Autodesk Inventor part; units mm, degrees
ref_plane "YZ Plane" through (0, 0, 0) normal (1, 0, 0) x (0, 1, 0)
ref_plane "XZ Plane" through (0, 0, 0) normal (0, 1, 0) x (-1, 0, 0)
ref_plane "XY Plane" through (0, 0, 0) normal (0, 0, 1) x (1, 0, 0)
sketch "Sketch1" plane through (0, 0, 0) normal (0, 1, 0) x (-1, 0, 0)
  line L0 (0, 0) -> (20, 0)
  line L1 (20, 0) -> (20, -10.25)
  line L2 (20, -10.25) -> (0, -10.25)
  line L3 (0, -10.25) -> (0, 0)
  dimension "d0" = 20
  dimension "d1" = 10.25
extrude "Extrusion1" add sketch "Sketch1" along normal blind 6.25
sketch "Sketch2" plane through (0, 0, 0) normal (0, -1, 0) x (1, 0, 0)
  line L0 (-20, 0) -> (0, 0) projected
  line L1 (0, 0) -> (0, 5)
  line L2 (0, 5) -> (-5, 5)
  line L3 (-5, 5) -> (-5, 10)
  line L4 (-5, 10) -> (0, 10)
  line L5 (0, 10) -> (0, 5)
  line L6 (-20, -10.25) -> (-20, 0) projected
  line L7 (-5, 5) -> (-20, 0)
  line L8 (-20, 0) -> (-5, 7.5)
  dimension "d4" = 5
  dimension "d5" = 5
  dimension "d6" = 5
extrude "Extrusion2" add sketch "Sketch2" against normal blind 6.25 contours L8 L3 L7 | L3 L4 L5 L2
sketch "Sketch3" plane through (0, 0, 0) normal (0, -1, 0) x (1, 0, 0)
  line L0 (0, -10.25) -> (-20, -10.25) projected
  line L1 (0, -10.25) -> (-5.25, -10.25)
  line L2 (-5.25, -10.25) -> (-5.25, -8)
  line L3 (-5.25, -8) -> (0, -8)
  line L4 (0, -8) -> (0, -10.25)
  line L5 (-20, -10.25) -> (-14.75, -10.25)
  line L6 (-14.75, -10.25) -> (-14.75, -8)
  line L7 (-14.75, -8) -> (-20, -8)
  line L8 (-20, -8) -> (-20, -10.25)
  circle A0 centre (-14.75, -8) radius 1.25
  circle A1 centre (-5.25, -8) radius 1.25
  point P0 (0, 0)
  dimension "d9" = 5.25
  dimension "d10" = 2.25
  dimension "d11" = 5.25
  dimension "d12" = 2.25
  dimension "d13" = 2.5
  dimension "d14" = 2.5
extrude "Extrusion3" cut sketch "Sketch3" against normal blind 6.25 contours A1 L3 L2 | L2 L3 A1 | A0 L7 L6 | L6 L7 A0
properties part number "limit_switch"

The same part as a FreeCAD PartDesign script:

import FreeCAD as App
import Part
import Sketcher
Q = App.Units.Quantity

doc = App.newDocument("Part")
body = doc.addObject("PartDesign::Body", "Body")
body.AllowCompound = True

# Sketch on XZ plane
sketch1 = body.newObject("Sketcher::SketchObject", "Sketch")
sketch1.AttachmentSupport = (doc.getObject("XZ_Plane"), [""])
sketch1.MapMode = "FlatFace"
sketch1.addGeometry(Part.LineSegment(App.Vector(-20, 0, 0), App.Vector(0, 0, 0)), False)
sketch1.addGeometry(Part.LineSegment(App.Vector(0, 0, 0), App.Vector(0, -10.25, 0)), False)
sketch1.addGeometry(Part.LineSegment(App.Vector(0, -10.25, 0), App.Vector(-20, -10.25, 0)), False)
sketch1.addGeometry(Part.LineSegment(App.Vector(-20, -10.25, 0), App.Vector(-20, 0, 0)), False)
sketch1.addConstraint(Sketcher.Constraint("Coincident", 0, 2, 1, 1))
sketch1.addConstraint(Sketcher.Constraint("Coincident", 1, 2, 2, 1))
sketch1.addConstraint(Sketcher.Constraint("Coincident", 2, 2, 3, 1))
sketch1.addConstraint(Sketcher.Constraint("Coincident", 3, 2, 0, 1))
sketch1.addConstraint(Sketcher.Constraint("Horizontal", 0))
sketch1.addConstraint(Sketcher.Constraint("Vertical", 1))
sketch1.addConstraint(Sketcher.Constraint("Horizontal", 2))
sketch1.addConstraint(Sketcher.Constraint("Vertical", 3))
sketch1.addConstraint(Sketcher.Constraint("Coincident", 0, 2, -1, 1))
sketch1.addConstraint(Sketcher.Constraint("DistanceX", 0, 1, 0, 2, Q("20 mm")))
sketch1.addConstraint(Sketcher.Constraint("DistanceY", 1, 2, 1, 1, Q("10.25 mm")))
pad1 = body.newObject("PartDesign::Pad", "Pad")
pad1.Profile = sketch1
pad1.Length = 6.25
pad1.Reversed = True

# Sketch on XZ plane
sketch2 = body.newObject("Sketcher::SketchObject", "Sketch001")
sketch2.AttachmentSupport = (doc.getObject("XZ_Plane"), [""])
sketch2.MapMode = "FlatFace"
sketch2.addGeometry(Part.LineSegment(App.Vector(-5, 7.5, 0), App.Vector(-20, 0, 0)), False)
sketch2.addGeometry(Part.LineSegment(App.Vector(-20, 0, 0), App.Vector(-5, 5, 0)), False)
sketch2.addGeometry(Part.LineSegment(App.Vector(-5, 5, 0), App.Vector(0, 5, 0)), False)
sketch2.addGeometry(Part.LineSegment(App.Vector(0, 5, 0), App.Vector(0, 10, 0)), False)
sketch2.addGeometry(Part.LineSegment(App.Vector(0, 10, 0), App.Vector(-5, 10, 0)), False)
sketch2.addGeometry(Part.LineSegment(App.Vector(-5, 10, 0), App.Vector(-5, 7.5, 0)), False)
sketch2.addConstraint(Sketcher.Constraint("Coincident", 0, 2, 1, 1))
sketch2.addConstraint(Sketcher.Constraint("Coincident", 1, 2, 2, 1))
sketch2.addConstraint(Sketcher.Constraint("Coincident", 2, 2, 3, 1))
sketch2.addConstraint(Sketcher.Constraint("Coincident", 3, 2, 4, 1))
sketch2.addConstraint(Sketcher.Constraint("Coincident", 4, 2, 5, 1))
sketch2.addConstraint(Sketcher.Constraint("Coincident", 5, 2, 0, 1))
sketch2.addConstraint(Sketcher.Constraint("Horizontal", 2))
sketch2.addConstraint(Sketcher.Constraint("Vertical", 3))
sketch2.addConstraint(Sketcher.Constraint("Horizontal", 4))
sketch2.addConstraint(Sketcher.Constraint("Vertical", 5))
sketch2.addConstraint(Sketcher.Constraint("PointOnObject", 0, 2, -1))
sketch2.addConstraint(Sketcher.Constraint("PointOnObject", 2, 2, -2))
sketch2.addConstraint(Sketcher.Constraint("Vertical", 1, 2, 4, 2))
sketch2.addConstraint(Sketcher.Constraint("Equal", 4, 3))
sketch2.addConstraint(Sketcher.Constraint("DistanceX", 2, 1, 2, 2, Q("5 mm")))
sketch2.addConstraint(Sketcher.Constraint("DistanceY", -1, 1, 1, 2, Q("5 mm")))
sketch2.addConstraint(Sketcher.Constraint("DistanceY", 5, 2, 5, 1, Q("2.5 mm")))
sketch2.addConstraint(Sketcher.Constraint("DistanceX", 0, 2, -1, 1, Q("20 mm")))
pad2 = body.newObject("PartDesign::Pad", "Pad001")
pad2.Profile = sketch2
pad2.Length = 6.25
pad2.Reversed = True

# Sketch on XZ plane
sketch3 = body.newObject("Sketcher::SketchObject", "Sketch002")
sketch3.AttachmentSupport = (doc.getObject("XZ_Plane"), [""])
sketch3.MapMode = "FlatFace"
sketch3.addGeometry(Part.Circle(App.Vector(-5.25, -8, 0), App.Vector(0, 0, 1), 1.25), False)
sketch3.addGeometry(Part.Circle(App.Vector(-14.75, -8, 0), App.Vector(0, 0, 1), 1.25), False)
sketch3.addConstraint(Sketcher.Constraint("Equal", 0, 1))
sketch3.addConstraint(Sketcher.Constraint("Horizontal", 0, 3, 1, 3))
sketch3.addConstraint(Sketcher.Constraint("Diameter", 0, Q("2.5 mm")))
sketch3.addConstraint(Sketcher.Constraint("DistanceX", 0, 3, -1, 1, Q("5.25 mm")))
sketch3.addConstraint(Sketcher.Constraint("DistanceY", 0, 3, -1, 1, Q("8 mm")))
sketch3.addConstraint(Sketcher.Constraint("DistanceX", 1, 3, 0, 3, Q("9.5 mm")))
pocket1 = body.newObject("PartDesign::Pocket", "Pocket")
pocket1.Profile = sketch3
pocket1.Length = 6.25

doc.recompute()
